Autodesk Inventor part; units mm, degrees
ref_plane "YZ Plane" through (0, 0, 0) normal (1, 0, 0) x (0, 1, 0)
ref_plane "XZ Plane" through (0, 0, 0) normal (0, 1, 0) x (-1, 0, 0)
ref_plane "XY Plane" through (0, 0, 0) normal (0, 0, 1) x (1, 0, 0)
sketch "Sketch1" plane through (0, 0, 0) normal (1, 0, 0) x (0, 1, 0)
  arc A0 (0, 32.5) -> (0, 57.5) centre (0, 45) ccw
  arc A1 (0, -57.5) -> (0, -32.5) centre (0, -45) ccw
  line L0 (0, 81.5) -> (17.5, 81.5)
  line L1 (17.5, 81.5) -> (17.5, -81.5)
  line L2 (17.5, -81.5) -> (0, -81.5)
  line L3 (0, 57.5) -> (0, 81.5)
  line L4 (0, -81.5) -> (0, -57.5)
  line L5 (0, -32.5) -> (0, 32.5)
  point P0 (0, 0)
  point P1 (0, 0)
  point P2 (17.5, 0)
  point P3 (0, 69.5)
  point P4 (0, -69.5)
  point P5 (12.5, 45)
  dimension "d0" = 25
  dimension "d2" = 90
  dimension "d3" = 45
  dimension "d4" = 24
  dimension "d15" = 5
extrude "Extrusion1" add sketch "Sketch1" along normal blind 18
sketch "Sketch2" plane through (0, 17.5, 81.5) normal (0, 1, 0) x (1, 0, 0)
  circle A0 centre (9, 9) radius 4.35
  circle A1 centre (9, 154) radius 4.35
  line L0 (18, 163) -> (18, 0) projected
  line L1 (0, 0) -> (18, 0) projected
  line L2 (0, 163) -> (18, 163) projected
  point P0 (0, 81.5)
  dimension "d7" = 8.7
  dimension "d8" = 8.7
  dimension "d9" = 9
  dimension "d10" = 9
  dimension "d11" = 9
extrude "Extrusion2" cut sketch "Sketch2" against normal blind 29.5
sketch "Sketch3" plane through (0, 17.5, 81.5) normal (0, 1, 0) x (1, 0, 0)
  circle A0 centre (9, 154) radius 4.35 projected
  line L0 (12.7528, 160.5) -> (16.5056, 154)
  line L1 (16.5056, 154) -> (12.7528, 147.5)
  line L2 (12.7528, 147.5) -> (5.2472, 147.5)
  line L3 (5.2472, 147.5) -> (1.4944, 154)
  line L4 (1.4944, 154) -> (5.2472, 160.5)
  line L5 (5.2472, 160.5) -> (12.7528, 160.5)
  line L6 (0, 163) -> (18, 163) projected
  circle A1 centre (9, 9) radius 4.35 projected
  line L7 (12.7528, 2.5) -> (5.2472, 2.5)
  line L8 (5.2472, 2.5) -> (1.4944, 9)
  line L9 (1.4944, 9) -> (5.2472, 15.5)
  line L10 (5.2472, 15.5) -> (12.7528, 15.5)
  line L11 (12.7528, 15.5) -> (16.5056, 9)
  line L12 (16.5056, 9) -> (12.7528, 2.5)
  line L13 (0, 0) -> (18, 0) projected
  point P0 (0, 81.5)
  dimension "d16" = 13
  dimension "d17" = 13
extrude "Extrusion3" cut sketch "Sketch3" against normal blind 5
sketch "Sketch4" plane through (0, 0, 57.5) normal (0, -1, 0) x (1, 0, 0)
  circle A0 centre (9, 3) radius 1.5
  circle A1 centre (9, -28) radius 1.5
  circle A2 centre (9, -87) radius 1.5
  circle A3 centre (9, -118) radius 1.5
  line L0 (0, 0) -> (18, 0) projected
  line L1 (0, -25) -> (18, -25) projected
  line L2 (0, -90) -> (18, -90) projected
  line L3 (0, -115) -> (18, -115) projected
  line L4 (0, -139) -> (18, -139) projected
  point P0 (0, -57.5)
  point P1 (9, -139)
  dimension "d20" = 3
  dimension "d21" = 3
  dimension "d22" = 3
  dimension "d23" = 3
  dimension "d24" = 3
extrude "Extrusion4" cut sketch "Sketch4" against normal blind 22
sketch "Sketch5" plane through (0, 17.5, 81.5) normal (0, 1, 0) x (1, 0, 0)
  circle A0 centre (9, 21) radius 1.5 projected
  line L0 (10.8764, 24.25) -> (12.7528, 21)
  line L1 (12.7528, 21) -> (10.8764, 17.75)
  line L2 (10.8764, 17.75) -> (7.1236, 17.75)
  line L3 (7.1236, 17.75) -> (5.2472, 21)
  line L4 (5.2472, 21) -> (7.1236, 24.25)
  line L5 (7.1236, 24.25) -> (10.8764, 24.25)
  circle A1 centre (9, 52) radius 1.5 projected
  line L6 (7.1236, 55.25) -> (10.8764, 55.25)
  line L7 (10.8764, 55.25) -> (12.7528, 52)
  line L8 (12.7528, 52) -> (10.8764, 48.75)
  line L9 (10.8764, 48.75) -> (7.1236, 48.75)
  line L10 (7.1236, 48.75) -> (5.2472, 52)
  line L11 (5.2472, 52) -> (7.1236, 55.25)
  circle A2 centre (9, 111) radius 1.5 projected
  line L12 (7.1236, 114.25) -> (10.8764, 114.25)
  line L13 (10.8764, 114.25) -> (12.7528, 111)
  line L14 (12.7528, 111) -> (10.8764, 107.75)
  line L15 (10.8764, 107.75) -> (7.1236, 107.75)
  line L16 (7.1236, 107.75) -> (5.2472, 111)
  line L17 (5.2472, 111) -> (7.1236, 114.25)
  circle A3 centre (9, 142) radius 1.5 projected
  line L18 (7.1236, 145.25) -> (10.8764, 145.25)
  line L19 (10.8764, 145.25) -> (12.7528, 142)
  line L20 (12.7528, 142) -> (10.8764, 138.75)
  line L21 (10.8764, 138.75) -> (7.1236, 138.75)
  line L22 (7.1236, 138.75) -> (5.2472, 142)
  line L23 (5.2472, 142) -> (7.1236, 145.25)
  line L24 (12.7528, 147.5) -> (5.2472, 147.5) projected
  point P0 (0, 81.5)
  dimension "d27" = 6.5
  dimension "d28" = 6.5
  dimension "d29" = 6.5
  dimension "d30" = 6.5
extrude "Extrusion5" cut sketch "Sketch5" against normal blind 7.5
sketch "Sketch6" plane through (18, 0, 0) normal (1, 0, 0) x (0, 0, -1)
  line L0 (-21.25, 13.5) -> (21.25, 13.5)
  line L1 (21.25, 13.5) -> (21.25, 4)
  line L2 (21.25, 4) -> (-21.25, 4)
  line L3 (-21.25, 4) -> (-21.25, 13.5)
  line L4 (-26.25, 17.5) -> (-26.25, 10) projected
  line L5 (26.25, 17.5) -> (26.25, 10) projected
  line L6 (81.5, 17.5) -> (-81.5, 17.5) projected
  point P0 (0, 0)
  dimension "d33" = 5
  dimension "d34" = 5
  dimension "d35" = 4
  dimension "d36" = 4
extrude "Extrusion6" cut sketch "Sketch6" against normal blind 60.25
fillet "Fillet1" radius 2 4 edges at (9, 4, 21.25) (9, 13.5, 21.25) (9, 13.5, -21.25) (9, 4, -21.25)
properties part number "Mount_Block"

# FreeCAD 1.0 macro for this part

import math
import FreeCAD as App
import Part
import Sketcher
Q = App.Units.Quantity


def edges_at(feature, points):
    """Names of the edges that pass closest to the given points."""
    edges = feature.Shape.Edges
    near = lambda p: min(range(len(edges)), key=lambda i: edges[i].distToShape(Part.Vertex(*p))[0])
    return sorted({f"Edge{near(p) + 1}" for p in points})

doc = App.newDocument("Part")
body = doc.addObject("PartDesign::Body", "Body")

sketch1 = body.newObject("Sketcher::SketchObject", "Sketch")
sketch1.AttachmentSupport = (doc.getObject("YZ_Plane"), [""])
sketch1.MapMode = "FlatFace"
sketch1.addGeometry([
    Part.ArcOfCircle(Part.Circle(App.Vector(0, 45, 0), App.Vector(0, 0, 1), 12), math.radians(-90), math.radians(90)),
    Part.LineSegment(App.Vector(0, 32, 0), App.Vector(0, -32, 0)),
    Part.ArcOfCircle(Part.Circle(App.Vector(0, -45, 0), App.Vector(0, 0, 1), 12), math.radians(-90), math.radians(90)),
    Part.LineSegment(App.Vector(0, -58, 0), App.Vector(0, -82, 0)),
    Part.LineSegment(App.Vector(0, -82, 0), App.Vector(18, -82, 0)),
    Part.LineSegment(App.Vector(18, -82, 0), App.Vector(18, 82, 0)),
    Part.LineSegment(App.Vector(18, 82, 0), App.Vector(0, 82, 0)),
    Part.LineSegment(App.Vector(0, 82, 0), App.Vector(0, 58, 0)),
], False)
sketch1.addConstraint([
    Sketcher.Constraint("Coincident", 0, 1, 1, 1),
    Sketcher.Constraint("Coincident", 1, 2, 2, 2),
    Sketcher.Constraint("Coincident", 2, 1, 3, 1),
    Sketcher.Constraint("Coincident", 3, 2, 4, 1),
    Sketcher.Constraint("Coincident", 4, 2, 5, 1),
    Sketcher.Constraint("Coincident", 5, 2, 6, 1),
    Sketcher.Constraint("Coincident", 6, 2, 7, 1),
    Sketcher.Constraint("Coincident", 7, 2, 0, 2),
    Sketcher.Constraint("Vertical", 1),
    Sketcher.Constraint("Vertical", 3),
    Sketcher.Constraint("Horizontal", 4),
    Sketcher.Constraint("Vertical", 5),
    Sketcher.Constraint("Horizontal", 6),
    Sketcher.Constraint("Vertical", 7),
    Sketcher.Constraint("Equal", 0, 2),
    Sketcher.Constraint("Symmetric", 0, 3, 2, 3, -1, 1),
    Sketcher.Constraint("Symmetric", 3, 2, 6, 2, -1, 1),
    Sketcher.Constraint("PointOnObject", 0, 3, -2),
    Sketcher.Constraint("PointOnObject", 0, 1, -2),
    Sketcher.Constraint("PointOnObject", 2, 1, -2),
    Sketcher.Constraint("Radius", 0, 12.5),
    Sketcher.Constraint("DistanceY", 3, 2, 3, 1, 24.0),
    Sketcher.Constraint("DistanceY", -1, 1, 0, 3, 45.0),
    Sketcher.Constraint("DistanceX", 4, 1, 4, 2, 17.5),
])
pad1 = body.newObject("PartDesign::Pad", "Pad")
pad1.Profile = sketch1
pad1.Length = 18

sketch2 = body.newObject("Sketcher::SketchObject", "Sketch001")
sketch2.AttachmentSupport = (doc.getObject("XZ_Plane"), [""])
sketch2.MapMode = "FlatFace"
sketch2.AttachmentOffset = App.Placement(App.Vector(0, 0, -17.5), App.Rotation())
sketch2.addGeometry([
    Part.Circle(App.Vector(9, 72.5, 0), App.Vector(0, 0, 1), 4.3),
    Part.Circle(App.Vector(9, -72.5, 0), App.Vector(0, 0, 1), 4.3),
], False)
sketch2.addConstraint([
    Sketcher.Constraint("Equal", 0, 1),
    Sketcher.Constraint("Symmetric", 0, 3, 1, 3, -1),
    Sketcher.Constraint("Diameter", 0, 8.7),
    Sketcher.Constraint("DistanceX", -1, 1, 0, 3, 9.0),
    Sketcher.Constraint("DistanceY", 1, 3, 0, 3, 145.0),
])
pocket1 = body.newObject("PartDesign::Pocket", "Pocket")
pocket1.Profile = sketch2
pocket1.Length = 29.5
pocket1.Reversed = True

sketch3 = body.newObject("Sketcher::SketchObject", "Sketch002")
sketch3.AttachmentSupport = (doc.getObject("XZ_Plane"), [""])
sketch3.MapMode = "FlatFace"
sketch3.AttachmentOffset = App.Placement(App.Vector(0, 0, -17.5), App.Rotation())
sketch3.addGeometry([
    Part.LineSegment(App.Vector(16.5, -72.5, 0), App.Vector(12.8, -79, 0)),
    Part.LineSegment(App.Vector(12.8, -79, 0), App.Vector(5.2, -79, 0)),
    Part.LineSegment(App.Vector(5.2, -79, 0), App.Vector(1.5, -72.5, 0)),
    Part.LineSegment(App.Vector(1.5, -72.5, 0), App.Vector(5.2, -66, 0)),
    Part.LineSegment(App.Vector(5.2, -66, 0), App.Vector(12.8, -66, 0)),
    Part.LineSegment(App.Vector(12.8, -66, 0), App.Vector(16.5, -72.5, 0)),
    Part.Circle(App.Vector(9, -72.5, 0), App.Vector(0, 0, 1), 4.3),
    Part.LineSegment(App.Vector(5.2, 79, 0), App.Vector(12.8, 79, 0)),
    Part.LineSegment(App.Vector(12.8, 79, 0), App.Vector(16.5, 72.5, 0)),
    Part.LineSegment(App.Vector(16.5, 72.5, 0), App.Vector(12.8, 66, 0)),
    Part.LineSegment(App.Vector(12.8, 66, 0), App.Vector(5.2, 66, 0)),
    Part.LineSegment(App.Vector(5.2, 66, 0), App.Vector(1.5, 72.5, 0)),
    Part.LineSegment(App.Vector(1.5, 72.5, 0), App.Vector(5.2, 79, 0)),
    Part.Circle(App.Vector(9, 72.5, 0), App.Vector(0, 0, 1), 4.3),
], False)
sketch3.addConstraint([
    Sketcher.Constraint("Coincident", 0, 2, 1, 1),
    Sketcher.Constraint("Coincident", 1, 2, 2, 1),
    Sketcher.Constraint("Coincident", 2, 2, 3, 1),
    Sketcher.Constraint("Coincident", 3, 2, 4, 1),
    Sketcher.Constraint("Coincident", 4, 2, 5, 1),
    Sketcher.Constraint("Coincident", 5, 2, 0, 1),
    Sketcher.Constraint("Coincident", 7, 2, 8, 1),
    Sketcher.Constraint("Coincident", 8, 2, 9, 1),
    Sketcher.Constraint("Coincident", 9, 2, 10, 1),
    Sketcher.Constraint("Coincident", 10, 2, 11, 1),
    Sketcher.Constraint("Coincident", 11, 2, 12, 1),
    Sketcher.Constraint("Coincident", 12, 2, 7, 1),
    Sketcher.Constraint("Horizontal", 1),
    Sketcher.Constraint("Horizontal", 4),
    Sketcher.Constraint("Horizontal", 7),
    Sketcher.Constraint("Horizontal", 10),
    Sketcher.Constraint("Equal", 6, 13),
    Sketcher.Constraint("Symmetric", 6, 3, 13, 3, -1),
    Sketcher.Constraint("Symmetric", 0, 2, 7, 2, -1),
    Sketcher.Constraint("Symmetric", 5, 2, 8, 2, -1),
    Sketcher.Constraint("Symmetric", 4, 2, 9, 2, -1),
    Sketcher.Constraint("Symmetric", 2, 2, 11, 2, -1),
    Sketcher.Constraint("Parallel", 0, 3),
    Sketcher.Constraint("Parallel", 2, 5),
    Sketcher.Constraint("Parallel", 5, 8),
    Sketcher.Constraint("Parallel", 8, 11),
    Sketcher.Constraint("Parallel", 9, 12),
    Sketcher.Constraint("Horizontal", 6, 3, 2, 2),
    Sketcher.Constraint("Horizontal", 2, 2, 5, 2),
    Sketcher.Constraint("Vertical", 1, 2, 3, 2),
    Sketcher.Constraint("DistanceY", 1, 2, 3, 2, 13.0),
    Sketcher.Constraint("Diameter", 6, 8.7),
    Sketcher.Constraint("Angle", 0, Q("-120.0002 deg")),
    Sketcher.Constraint("DistanceX", -1, 1, 6, 3, 9.0),
    Sketcher.Constraint("DistanceY", 0, 2, -1, 1, 79.0),
    Sketcher.Constraint("DistanceX", 1, 2, 1, 1, 7.5056),
    Sketcher.Constraint("DistanceX", -1, 1, 0, 2, 12.7528),
])
pocket2 = body.newObject("PartDesign::Pocket", "Pocket001")
pocket2.Profile = sketch3
pocket2.Length = 5
pocket2.Reversed = True

sketch4 = body.newObject("Sketcher::SketchObject", "Sketch003")
sketch4.AttachmentSupport = (doc.getObject("XZ_Plane"), [""])
sketch4.MapMode = "FlatFace"
sketch4.addGeometry([
    Part.Circle(App.Vector(9, 60.5, 0), App.Vector(0, 0, 1), 1.5),
    Part.Circle(App.Vector(9, 29.5, 0), App.Vector(0, 0, 1), 1.5),
    Part.Circle(App.Vector(9, -29.5, 0), App.Vector(0, 0, 1), 1.5),
    Part.Circle(App.Vector(9, -60.5, 0), App.Vector(0, 0, 1), 1.5),
], False)
sketch4.addConstraint([
    Sketcher.Constraint("Equal", 0, 1),
    Sketcher.Constraint("Equal", 1, 2),
    Sketcher.Constraint("Equal", 2, 3),
    Sketcher.Constraint("Symmetric", 1, 3, 2, 3, -1),
    Sketcher.Constraint("Symmetric", 0, 3, 3, 3, -1),
    Sketcher.Constraint("Vertical", 0, 3, 1, 3),
    Sketcher.Constraint("Diameter", 0, 3.0),
    Sketcher.Constraint("DistanceX", -1, 1, 0, 3, 9.0),
    Sketcher.Constraint("DistanceY", 1, 3, 0, 3, 31.0),
    Sketcher.Constraint("DistanceY", 2, 3, 1, 3, 59.0),
])
pocket3 = body.newObject("PartDesign::Pocket", "Pocket002")
pocket3.Profile = sketch4
pocket3.Length = 22

sketch5 = body.newObject("Sketcher::SketchObject", "Sketch004")
sketch5.AttachmentSupport = (doc.getObject("XZ_Plane"), [""])
sketch5.MapMode = "FlatFace"
sketch5.AttachmentOffset = App.Placement(App.Vector(0, 0, -17.5), App.Rotation())
sketch5.addGeometry([
    Part.LineSegment(App.Vector(12.8, 60.5, 0), App.Vector(10.9, 57.2, 0)),
    Part.LineSegment(App.Vector(10.9, 57.2, 0), App.Vector(7.1, 57.2, 0)),
    Part.LineSegment(App.Vector(7.1, 57.2, 0), App.Vector(5.2, 60.5, 0)),
    Part.LineSegment(App.Vector(5.2, 60.5, 0), App.Vector(7.1, 63.8, 0)),
    Part.LineSegment(App.Vector(7.1, 63.8, 0), App.Vector(10.9, 63.8, 0)),
    Part.LineSegment(App.Vector(10.9, 63.8, 0), App.Vector(12.8, 60.5, 0)),
    Part.Circle(App.Vector(9, 60.5, 0), App.Vector(0, 0, 1), 1.5),
    Part.LineSegment(App.Vector(10.9, 26.2, 0), App.Vector(7.1, 26.2, 0)),
    Part.LineSegment(App.Vector(7.1, 26.2, 0), App.Vector(5.2, 29.5, 0)),
    Part.LineSegment(App.Vector(5.2, 29.5, 0), App.Vector(7.1, 32.8, 0)),
    Part.LineSegment(App.Vector(7.1, 32.8, 0), App.Vector(10.9, 32.8, 0)),
    Part.LineSegment(App.Vector(10.9, 32.8, 0), App.Vector(12.8, 29.5, 0)),
    Part.LineSegment(App.Vector(12.8, 29.5, 0), App.Vector(10.9, 26.2, 0)),
    Part.Circle(App.Vector(9, 29.5, 0), App.Vector(0, 0, 1), 1.5),
    Part.LineSegment(App.Vector(10.9, -32.8, 0), App.Vector(7.1, -32.8, 0)),
    Part.LineSegment(App.Vector(7.1, -32.8, 0), App.Vector(5.2, -29.5, 0)),
    Part.LineSegment(App.Vector(5.2, -29.5, 0), App.Vector(7.1, -26.2, 0)),
    Part.LineSegment(App.Vector(7.1, -26.2, 0), App.Vector(10.9, -26.2, 0)),
    Part.LineSegment(App.Vector(10.9, -26.2, 0), App.Vector(12.8, -29.5, 0)),
    Part.LineSegment(App.Vector(12.8, -29.5, 0), App.Vector(10.9, -32.8, 0)),
    Part.Circle(App.Vector(9, -29.5, 0), App.Vector(0, 0, 1), 1.5),
    Part.LineSegment(App.Vector(10.9, -63.8, 0), App.Vector(7.1, -63.8, 0)),
    Part.LineSegment(App.Vector(7.1, -63.8, 0), App.Vector(5.2, -60.5, 0)),
    Part.LineSegment(App.Vector(5.2, -60.5, 0), App.Vector(7.1, -57.2, 0)),
    Part.LineSegment(App.Vector(7.1, -57.2, 0), App.Vector(10.9, -57.2, 0)),
    Part.LineSegment(App.Vector(10.9, -57.2, 0), App.Vector(12.8, -60.5, 0)),
    Part.LineSegment(App.Vector(12.8, -60.5, 0), App.Vector(10.9, -63.8, 0)),
    Part.Circle(App.Vector(9, -60.5, 0), App.Vector(0, 0, 1), 1.5),
], False)
sketch5.addConstraint([
    Sketcher.Constraint("Coincident", 0, 2, 1, 1),
    Sketcher.Constraint("Coincident", 1, 2, 2, 1),
    Sketcher.Constraint("Coincident", 2, 2, 3, 1),
    Sketcher.Constraint("Coincident", 3, 2, 4, 1),
    Sketcher.Constraint("Coincident", 4, 2, 5, 1),
    Sketcher.Constraint("Coincident", 5, 2, 0, 1),
    Sketcher.Constraint("Coincident", 7, 2, 8, 1),
    Sketcher.Constraint("Coincident", 8, 2, 9, 1),
    Sketcher.Constraint("Coincident", 9, 2, 10, 1),
    Sketcher.Constraint("Coincident", 10, 2, 11, 1),
    Sketcher.Constraint("Coincident", 11, 2, 12, 1),
    Sketcher.Constraint("Coincident", 12, 2, 7, 1),
    Sketcher.Constraint("Coincident", 14, 2, 15, 1),
    Sketcher.Constraint("Coincident", 15, 2, 16, 1),
    Sketcher.Constraint("Coincident", 16, 2, 17, 1),
    Sketcher.Constraint("Coincident", 17, 2, 18, 1),
    Sketcher.Constraint("Coincident", 18, 2, 19, 1),
    Sketcher.Constraint("Coincident", 19, 2, 14, 1),
    Sketcher.Constraint("Coincident", 21, 2, 22, 1),
    Sketcher.Constraint("Coincident", 22, 2, 23, 1),
    Sketcher.Constraint("Coincident", 23, 2, 24, 1),
    Sketcher.Constraint("Coincident", 24, 2, 25, 1),
    Sketcher.Constraint("Coincident", 25, 2, 26, 1),
    Sketcher.Constraint("Coincident", 26, 2, 21, 1),
    Sketcher.Constraint("Horizontal", 1),
    Sketcher.Constraint("Horizontal", 4),
    Sketcher.Constraint("Horizontal", 7),
    Sketcher.Constraint("Horizontal", 10),
    Sketcher.Constraint("Horizontal", 14),
    Sketcher.Constraint("Horizontal", 17),
    Sketcher.Constraint("Horizontal", 21),
    Sketcher.Constraint("Horizontal", 24),
    Sketcher.Constraint("Equal", 6, 13),
    Sketcher.Constraint("Equal", 13, 20),
    Sketcher.Constraint("Equal", 20, 27),
    Sketcher.Constraint("Symmetric", 13, 3, 20, 3, -1),
    Sketcher.Constraint("Symmetric", 6, 3, 27, 3, -1),
    Sketcher.Constraint("Symmetric", 9, 2, 14, 2, -1),
    Sketcher.Constraint("Symmetric", 8, 2, 15, 2, -1),
    Sketcher.Constraint("Symmetric", 7, 2, 16, 2, -1),
    Sketcher.Constraint("Symmetric", 11, 2, 18, 2, -1),
    Sketcher.Constraint("Symmetric", 3, 2, 21, 2, -1),
    Sketcher.Constraint("Symmetric", 2, 2, 22, 2, -1),
    Sketcher.Constraint("Symmetric", 1, 2, 23, 2, -1),
    Sketcher.Constraint("Symmetric", 5, 2, 25, 2, -1),
    Sketcher.Constraint("Parallel", 0, 3),
    Sketcher.Constraint("Parallel", 2, 5),
    Sketcher.Constraint("Parallel", 5, 8),
    Sketcher.Constraint("Parallel", 3, 9),
    Sketcher.Constraint("Parallel", 8, 11),
    Sketcher.Constraint("Parallel", 9, 12),
    Sketcher.Constraint("Parallel", 11, 15),
    Sketcher.Constraint("Parallel", 15, 18),
    Sketcher.Constraint("Parallel", 16, 19),
    Sketcher.Constraint("Parallel", 22, 25),
    Sketcher.Constraint("Parallel", 23, 26),
    Sketcher.Constraint("Horizontal", 6, 3, 2, 2),
    Sketcher.Constraint("Horizontal", 2, 2, 5, 2),
    Sketcher.Constraint("Horizontal", 13, 3, 8, 2),
    Sketcher.Constraint("Horizontal", 8, 2, 11, 2),
    Sketcher.Constraint("Vertical", 6, 3, 13, 3),
    Sketcher.Constraint("Vertical", 1, 2, 3, 2),
    Sketcher.Constraint("Vertical", 3, 2, 7, 2),
    Sketcher.Constraint("Vertical", 2, 2, 8, 2),
    Sketcher.Constraint("Vertical", 7, 2, 9, 2),
    Sketcher.Constraint("Vertical", 4, 2, 10, 2),
    Sketcher.Constraint("Diameter", 6, 3.0),
    Sketcher.Constraint("DistanceY", 1, 2, 3, 2, 6.5),
    Sketcher.Constraint("Angle", 0, Q("-120.0002 deg")),
    Sketcher.Constraint("DistanceX", -1, 1, 6, 3, 9.0),
    Sketcher.Constraint("DistanceY", 13, 3, 6, 3, 31.0),
    Sketcher.Constraint("DistanceY", 20, 3, 13, 3, 59.0),
    Sketcher.Constraint("DistanceX", 1, 2, 1, 1, 3.7528),
    Sketcher.Constraint("DistanceX", -1, 1, 0, 2, 10.8764),
])
pocket4 = body.newObject("PartDesign::Pocket", "Pocket003")
pocket4.Profile = sketch5
pocket4.Length = 7.5
pocket4.Reversed = True

sketch6 = body.newObject("Sketcher::SketchObject", "Sketch005")
sketch6.AttachmentSupport = (doc.getObject("YZ_Plane"), [""])
sketch6.MapMode = "FlatFace"
sketch6.AttachmentOffset = App.Placement(App.Vector(0, 0, 18), App.Rotation())
sketch6.addGeometry([
    Part.LineSegment(App.Vector(14, -21, 0), App.Vector(14, 21, 0)),
    Part.LineSegment(App.Vector(14, 21, 0), App.Vector(4, 21, 0)),
    Part.LineSegment(App.Vector(4, 21, 0), App.Vector(4, -21, 0)),
    Part.LineSegment(App.Vector(4, -21, 0), App.Vector(14, -21, 0)),
], False)
sketch6.addConstraint([
    Sketcher.Constraint("Coincident", 0, 2, 1, 1),
    Sketcher.Constraint("Coincident", 1, 2, 2, 1),
    Sketcher.Constraint("Coincident", 2, 2, 3, 1),
    Sketcher.Constraint("Coincident", 3, 2, 0, 1),
    Sketcher.Constraint("Vertical", 0),
    Sketcher.Constraint("Horizontal", 1),
    Sketcher.Constraint("Vertical", 2),
    Sketcher.Constraint("Horizontal", 3),
    Sketcher.Constraint("DistanceX", -1, 1, 1, 2, 4.0),
    Sketcher.Constraint("DistanceX", 1, 2, 1, 1, 9.5),
    Sketcher.Constraint("DistanceY", 0, 1, 0, 2, 42.5),
    Sketcher.Constraint("DistanceY", -1, 1, 0, 2, 21.25),
])
pocket5 = body.newObject("PartDesign::Pocket", "Pocket004")
pocket5.Profile = sketch6
pocket5.Length = 60.25
doc.recompute()

fillet = body.newObject("PartDesign::Fillet", "Fillet")
fillet.Base = (pocket5, edges_at(pocket5, [
    (9, 4, 21.25),
    (9, 13.5, 21.25),
    (9, 13.5, -21.25),
    (9, 4, -21.25),
]))
fillet.Radius = 2

doc.recompute()
